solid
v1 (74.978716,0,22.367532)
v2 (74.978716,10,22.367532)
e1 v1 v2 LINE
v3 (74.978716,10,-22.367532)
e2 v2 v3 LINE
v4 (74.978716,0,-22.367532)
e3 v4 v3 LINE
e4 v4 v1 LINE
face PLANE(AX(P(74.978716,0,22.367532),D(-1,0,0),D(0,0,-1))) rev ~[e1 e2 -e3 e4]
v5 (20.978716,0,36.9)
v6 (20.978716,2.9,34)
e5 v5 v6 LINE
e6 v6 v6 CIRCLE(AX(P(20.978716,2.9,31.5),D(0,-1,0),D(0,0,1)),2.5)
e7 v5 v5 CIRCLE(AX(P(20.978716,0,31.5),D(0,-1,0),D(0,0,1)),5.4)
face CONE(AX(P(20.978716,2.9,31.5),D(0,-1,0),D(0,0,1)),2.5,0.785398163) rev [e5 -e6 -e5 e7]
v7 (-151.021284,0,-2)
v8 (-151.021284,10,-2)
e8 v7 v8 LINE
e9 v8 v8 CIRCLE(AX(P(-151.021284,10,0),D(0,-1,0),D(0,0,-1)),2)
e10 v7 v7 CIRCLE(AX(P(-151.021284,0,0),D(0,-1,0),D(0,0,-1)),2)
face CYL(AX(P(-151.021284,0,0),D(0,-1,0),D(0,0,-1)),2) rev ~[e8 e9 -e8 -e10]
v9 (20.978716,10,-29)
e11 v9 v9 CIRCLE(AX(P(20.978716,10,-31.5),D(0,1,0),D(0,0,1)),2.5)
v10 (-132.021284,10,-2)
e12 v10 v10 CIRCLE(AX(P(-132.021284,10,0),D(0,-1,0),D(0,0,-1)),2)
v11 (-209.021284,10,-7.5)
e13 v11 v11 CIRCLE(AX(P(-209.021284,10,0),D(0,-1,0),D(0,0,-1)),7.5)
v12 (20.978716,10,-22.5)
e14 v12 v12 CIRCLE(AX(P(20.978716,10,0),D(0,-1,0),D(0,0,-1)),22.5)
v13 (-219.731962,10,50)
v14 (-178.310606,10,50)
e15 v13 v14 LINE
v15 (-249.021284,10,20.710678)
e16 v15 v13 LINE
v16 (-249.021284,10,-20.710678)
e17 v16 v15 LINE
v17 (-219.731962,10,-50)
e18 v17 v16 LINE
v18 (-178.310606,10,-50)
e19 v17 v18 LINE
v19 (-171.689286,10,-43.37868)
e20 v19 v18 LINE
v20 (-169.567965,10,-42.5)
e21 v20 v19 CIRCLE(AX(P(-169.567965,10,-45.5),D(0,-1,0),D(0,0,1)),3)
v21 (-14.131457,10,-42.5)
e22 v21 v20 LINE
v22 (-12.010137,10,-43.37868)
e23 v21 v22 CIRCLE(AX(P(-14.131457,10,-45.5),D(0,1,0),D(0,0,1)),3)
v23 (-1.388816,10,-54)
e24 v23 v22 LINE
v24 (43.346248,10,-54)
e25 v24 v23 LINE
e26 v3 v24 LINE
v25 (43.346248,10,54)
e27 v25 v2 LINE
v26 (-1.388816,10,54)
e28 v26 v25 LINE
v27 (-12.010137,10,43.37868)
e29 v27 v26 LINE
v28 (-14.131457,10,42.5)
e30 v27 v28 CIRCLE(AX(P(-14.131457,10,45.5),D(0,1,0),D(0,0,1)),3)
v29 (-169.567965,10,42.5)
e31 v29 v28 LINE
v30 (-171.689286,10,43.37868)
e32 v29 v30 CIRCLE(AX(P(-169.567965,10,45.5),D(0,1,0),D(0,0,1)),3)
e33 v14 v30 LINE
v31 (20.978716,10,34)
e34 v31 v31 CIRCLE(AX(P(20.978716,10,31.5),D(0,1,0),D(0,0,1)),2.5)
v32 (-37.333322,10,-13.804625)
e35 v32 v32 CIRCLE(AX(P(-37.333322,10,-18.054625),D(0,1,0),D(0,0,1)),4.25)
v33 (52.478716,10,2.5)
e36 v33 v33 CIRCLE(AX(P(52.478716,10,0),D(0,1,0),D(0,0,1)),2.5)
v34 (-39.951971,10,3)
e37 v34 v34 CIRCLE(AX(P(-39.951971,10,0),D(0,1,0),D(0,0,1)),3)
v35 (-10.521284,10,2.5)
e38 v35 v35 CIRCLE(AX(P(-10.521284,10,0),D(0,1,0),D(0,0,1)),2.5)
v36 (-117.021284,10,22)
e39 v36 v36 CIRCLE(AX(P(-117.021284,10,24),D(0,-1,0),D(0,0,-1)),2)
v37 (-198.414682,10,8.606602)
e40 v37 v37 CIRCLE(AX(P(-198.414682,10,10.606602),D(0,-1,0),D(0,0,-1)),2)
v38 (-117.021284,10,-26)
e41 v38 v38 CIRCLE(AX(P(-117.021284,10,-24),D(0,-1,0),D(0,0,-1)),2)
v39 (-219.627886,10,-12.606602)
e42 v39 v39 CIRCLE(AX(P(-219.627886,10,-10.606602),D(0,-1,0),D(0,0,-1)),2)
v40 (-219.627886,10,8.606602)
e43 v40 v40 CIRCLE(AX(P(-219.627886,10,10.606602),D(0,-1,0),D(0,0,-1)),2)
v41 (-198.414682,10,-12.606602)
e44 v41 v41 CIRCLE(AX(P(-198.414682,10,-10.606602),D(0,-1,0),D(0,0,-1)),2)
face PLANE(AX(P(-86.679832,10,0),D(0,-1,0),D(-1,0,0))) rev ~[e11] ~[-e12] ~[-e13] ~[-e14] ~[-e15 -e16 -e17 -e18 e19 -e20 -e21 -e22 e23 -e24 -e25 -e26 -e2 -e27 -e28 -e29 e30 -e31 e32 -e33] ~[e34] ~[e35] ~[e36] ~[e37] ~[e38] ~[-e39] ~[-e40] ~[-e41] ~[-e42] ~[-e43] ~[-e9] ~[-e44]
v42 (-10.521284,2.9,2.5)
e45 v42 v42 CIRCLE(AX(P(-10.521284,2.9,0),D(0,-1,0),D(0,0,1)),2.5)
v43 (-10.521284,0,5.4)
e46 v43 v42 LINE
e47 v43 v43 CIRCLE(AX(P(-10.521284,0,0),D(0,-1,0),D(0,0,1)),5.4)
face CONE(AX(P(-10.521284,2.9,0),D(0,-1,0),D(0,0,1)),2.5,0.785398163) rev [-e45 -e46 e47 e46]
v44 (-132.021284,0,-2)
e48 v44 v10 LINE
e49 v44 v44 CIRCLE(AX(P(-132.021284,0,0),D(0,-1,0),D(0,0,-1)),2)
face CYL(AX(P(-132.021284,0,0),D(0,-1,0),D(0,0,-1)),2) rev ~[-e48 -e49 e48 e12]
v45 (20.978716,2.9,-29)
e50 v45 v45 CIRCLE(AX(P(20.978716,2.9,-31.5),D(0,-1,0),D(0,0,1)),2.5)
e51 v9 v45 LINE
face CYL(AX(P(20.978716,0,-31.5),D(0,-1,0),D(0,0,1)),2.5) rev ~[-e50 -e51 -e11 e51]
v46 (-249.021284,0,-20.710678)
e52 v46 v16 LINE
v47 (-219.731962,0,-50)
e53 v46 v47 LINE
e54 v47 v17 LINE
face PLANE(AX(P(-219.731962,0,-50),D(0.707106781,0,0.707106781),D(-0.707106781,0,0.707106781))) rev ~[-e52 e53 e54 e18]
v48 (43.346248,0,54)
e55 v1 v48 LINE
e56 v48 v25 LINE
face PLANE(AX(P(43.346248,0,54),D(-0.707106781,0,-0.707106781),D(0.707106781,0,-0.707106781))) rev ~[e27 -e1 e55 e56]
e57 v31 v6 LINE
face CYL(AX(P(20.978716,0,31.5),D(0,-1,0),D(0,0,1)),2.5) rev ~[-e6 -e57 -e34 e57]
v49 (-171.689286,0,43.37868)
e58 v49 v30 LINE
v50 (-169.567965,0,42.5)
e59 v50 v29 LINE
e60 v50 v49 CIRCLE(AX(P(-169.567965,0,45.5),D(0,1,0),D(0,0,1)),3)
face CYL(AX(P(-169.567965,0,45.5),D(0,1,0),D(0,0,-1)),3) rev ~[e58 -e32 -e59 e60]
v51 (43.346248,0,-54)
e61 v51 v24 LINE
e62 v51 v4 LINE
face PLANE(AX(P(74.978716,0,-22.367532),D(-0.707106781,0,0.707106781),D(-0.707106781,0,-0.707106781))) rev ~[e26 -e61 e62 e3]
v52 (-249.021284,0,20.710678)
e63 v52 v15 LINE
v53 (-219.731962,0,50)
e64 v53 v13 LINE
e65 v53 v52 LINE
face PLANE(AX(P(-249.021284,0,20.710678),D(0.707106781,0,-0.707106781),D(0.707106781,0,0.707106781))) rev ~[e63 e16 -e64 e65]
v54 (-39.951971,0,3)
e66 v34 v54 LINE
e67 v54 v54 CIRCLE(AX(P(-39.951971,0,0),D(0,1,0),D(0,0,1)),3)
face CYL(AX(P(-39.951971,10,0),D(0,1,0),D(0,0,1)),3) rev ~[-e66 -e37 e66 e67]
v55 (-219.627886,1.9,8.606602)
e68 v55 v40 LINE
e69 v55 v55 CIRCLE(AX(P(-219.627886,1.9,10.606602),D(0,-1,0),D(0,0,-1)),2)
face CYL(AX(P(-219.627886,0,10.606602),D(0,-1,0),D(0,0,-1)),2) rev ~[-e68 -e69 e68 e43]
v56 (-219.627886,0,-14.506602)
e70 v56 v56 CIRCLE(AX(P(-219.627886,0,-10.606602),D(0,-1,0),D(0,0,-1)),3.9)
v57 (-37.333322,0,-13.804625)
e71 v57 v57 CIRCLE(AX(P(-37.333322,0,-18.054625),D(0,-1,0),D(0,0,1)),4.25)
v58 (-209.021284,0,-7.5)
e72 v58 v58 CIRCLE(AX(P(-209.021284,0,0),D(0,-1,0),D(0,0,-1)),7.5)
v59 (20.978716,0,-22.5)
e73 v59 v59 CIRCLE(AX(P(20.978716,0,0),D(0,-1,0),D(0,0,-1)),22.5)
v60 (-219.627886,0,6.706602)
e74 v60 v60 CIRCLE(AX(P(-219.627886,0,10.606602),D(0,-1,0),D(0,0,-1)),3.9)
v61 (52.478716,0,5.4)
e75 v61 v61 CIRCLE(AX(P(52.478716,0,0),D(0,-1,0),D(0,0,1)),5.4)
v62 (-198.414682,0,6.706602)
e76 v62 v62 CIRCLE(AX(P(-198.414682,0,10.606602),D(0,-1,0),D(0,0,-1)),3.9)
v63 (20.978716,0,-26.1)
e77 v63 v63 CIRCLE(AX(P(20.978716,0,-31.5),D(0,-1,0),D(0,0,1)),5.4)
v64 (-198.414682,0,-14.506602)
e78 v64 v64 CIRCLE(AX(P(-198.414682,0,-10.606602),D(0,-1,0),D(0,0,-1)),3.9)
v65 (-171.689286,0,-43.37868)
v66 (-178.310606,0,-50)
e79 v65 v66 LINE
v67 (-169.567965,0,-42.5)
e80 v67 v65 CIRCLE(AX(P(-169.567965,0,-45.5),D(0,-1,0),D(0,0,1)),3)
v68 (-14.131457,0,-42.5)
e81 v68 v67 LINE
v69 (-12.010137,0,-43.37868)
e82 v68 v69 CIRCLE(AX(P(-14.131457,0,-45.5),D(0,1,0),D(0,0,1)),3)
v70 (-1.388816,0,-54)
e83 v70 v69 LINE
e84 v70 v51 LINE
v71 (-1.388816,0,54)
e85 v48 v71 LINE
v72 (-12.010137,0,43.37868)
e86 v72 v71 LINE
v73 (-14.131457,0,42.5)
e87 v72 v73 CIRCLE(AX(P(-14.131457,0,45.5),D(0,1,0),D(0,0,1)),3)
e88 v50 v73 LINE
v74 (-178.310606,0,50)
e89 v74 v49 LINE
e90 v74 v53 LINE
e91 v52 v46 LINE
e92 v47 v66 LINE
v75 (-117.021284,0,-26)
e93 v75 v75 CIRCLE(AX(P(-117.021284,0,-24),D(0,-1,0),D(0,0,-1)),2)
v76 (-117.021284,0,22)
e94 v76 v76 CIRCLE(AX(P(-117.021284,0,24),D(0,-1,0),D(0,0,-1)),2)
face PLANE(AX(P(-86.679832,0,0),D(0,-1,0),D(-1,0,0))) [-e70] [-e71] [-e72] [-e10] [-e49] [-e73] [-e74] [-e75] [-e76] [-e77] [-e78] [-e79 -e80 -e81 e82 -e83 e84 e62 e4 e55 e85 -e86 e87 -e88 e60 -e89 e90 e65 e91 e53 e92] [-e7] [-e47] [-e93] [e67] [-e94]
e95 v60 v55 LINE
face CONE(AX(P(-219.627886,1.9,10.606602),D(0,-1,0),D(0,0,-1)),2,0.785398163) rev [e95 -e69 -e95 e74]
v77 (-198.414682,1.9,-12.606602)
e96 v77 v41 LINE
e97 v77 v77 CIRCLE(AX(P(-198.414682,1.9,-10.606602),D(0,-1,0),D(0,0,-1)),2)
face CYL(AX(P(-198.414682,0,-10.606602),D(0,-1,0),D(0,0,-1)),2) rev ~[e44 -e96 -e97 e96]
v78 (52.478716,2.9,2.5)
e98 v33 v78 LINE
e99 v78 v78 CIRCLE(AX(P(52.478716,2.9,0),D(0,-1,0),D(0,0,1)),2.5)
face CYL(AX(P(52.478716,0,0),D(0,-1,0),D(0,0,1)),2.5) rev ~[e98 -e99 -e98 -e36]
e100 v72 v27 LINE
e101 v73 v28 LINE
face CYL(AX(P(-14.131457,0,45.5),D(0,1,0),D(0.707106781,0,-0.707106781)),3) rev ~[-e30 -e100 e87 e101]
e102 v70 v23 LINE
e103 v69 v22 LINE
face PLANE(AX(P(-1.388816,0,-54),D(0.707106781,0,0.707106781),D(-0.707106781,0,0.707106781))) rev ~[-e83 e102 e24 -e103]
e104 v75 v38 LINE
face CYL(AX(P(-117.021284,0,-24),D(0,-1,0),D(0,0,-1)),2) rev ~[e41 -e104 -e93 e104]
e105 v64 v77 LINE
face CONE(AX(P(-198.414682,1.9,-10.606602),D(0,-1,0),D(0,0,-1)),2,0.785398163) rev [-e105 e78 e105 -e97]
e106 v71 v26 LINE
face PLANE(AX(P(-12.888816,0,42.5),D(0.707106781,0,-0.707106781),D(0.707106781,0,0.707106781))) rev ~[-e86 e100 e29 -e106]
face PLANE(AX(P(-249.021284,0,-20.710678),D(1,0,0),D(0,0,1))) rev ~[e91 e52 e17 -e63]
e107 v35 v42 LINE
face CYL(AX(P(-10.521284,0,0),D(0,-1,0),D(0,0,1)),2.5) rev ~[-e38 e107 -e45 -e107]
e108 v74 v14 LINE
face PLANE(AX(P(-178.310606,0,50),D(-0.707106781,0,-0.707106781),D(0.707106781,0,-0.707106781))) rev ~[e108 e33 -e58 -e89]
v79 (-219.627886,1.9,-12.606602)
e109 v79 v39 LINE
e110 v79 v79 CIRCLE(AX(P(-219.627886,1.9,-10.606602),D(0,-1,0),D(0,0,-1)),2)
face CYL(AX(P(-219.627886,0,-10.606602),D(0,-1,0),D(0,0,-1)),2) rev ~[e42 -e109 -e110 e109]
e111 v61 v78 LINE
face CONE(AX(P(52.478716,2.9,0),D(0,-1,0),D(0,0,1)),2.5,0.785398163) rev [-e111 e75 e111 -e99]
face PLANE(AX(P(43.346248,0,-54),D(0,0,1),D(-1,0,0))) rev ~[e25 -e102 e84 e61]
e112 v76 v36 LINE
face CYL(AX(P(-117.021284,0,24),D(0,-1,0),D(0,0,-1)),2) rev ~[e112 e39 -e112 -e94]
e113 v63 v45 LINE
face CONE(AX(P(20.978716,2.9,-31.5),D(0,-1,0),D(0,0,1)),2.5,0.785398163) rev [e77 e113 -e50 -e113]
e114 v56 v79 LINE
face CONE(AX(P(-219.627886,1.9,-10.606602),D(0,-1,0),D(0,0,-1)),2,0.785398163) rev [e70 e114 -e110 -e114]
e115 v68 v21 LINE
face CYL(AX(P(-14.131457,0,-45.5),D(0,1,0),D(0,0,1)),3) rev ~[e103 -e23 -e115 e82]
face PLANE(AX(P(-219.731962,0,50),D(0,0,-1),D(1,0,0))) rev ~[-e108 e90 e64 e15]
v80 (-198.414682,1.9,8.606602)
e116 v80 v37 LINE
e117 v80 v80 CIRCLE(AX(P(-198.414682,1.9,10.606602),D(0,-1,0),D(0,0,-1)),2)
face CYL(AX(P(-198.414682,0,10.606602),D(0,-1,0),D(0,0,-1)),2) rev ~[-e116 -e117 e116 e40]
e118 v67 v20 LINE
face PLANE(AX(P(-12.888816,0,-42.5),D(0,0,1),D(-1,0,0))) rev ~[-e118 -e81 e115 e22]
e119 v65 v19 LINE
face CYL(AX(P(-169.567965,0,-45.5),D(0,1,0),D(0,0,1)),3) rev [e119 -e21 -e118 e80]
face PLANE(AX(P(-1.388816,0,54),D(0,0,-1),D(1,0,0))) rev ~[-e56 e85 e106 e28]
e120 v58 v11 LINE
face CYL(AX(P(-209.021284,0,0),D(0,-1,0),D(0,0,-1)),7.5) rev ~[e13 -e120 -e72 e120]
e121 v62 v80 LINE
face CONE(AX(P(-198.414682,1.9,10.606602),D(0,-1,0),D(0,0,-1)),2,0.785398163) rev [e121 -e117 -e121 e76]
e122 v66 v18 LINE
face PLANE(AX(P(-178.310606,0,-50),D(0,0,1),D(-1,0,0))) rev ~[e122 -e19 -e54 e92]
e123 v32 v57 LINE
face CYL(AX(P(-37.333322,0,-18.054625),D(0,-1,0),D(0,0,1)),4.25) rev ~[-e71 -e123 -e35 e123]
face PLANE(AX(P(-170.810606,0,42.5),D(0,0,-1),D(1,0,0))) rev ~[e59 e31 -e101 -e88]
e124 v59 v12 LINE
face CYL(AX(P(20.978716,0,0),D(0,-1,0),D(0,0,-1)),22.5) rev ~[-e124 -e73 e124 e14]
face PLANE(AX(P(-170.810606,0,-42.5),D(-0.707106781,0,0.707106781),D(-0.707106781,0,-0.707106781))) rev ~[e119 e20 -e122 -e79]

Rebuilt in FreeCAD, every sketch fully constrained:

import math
import FreeCAD as App
import Part
import Sketcher
from FreeCAD import Vector


def edges_at(feature, points):
    """Names of the edges that pass closest to the given points."""
    edges = feature.Shape.Edges
    near = lambda p: min(range(len(edges)), key=lambda i: edges[i].distToShape(Part.Vertex(*p))[0])
    return sorted({f"Edge{near(p) + 1}" for p in points})

doc = App.newDocument("Part")
body = doc.addObject("PartDesign::Body", "Body")

# Sketch on XZ plane
sketch1 = body.newObject("Sketcher::SketchObject", "Sketch")
sketch1.AttachmentSupport = (doc.getObject("XZ_Plane"), [""])
sketch1.MapMode = "FlatFace"
sketch1.addGeometry(Part.LineSegment(Vector(-12.334194, -42.5, 0), Vector(-172.68215, -42.5, 0)), False)
sketch1.addGeometry(Part.ArcOfCircle(Part.Circle(Vector(-199.021284, 0, 0), Vector(0, 0, 1), 50), math.radians(58.211669), math.radians(301.788331)), False)
sketch1.addGeometry(Part.LineSegment(Vector(-172.68215, 42.5, 0), Vector(-12.334194, 42.5, 0)), False)
sketch1.addGeometry(Part.ArcOfCircle(Part.Circle(Vector(20.978716, 0, 0), Vector(0, 0, 1), 54), math.radians(-128.090526), math.radians(128.090526)), False)
sketch1.addConstraint(Sketcher.Constraint("Coincident", 0, 2, 1, 2))
sketch1.addConstraint(Sketcher.Constraint("Coincident", 1, 1, 2, 1))
sketch1.addConstraint(Sketcher.Constraint("Coincident", 2, 2, 3, 2))
sketch1.addConstraint(Sketcher.Constraint("Coincident", 3, 1, 0, 1))
sketch1.addConstraint(Sketcher.Constraint("Horizontal", 0))
sketch1.addConstraint(Sketcher.Constraint("Horizontal", 2))
sketch1.addConstraint(Sketcher.Constraint("Symmetric", 0, 2, 1, 1, -1))
sketch1.addConstraint(Sketcher.Constraint("PointOnObject", 3, 3, -1))
sketch1.addConstraint(Sketcher.Constraint("Radius", 1, 50.0))
sketch1.addConstraint(Sketcher.Constraint("Radius", 3, 54.0))
sketch1.addConstraint(Sketcher.Constraint("DistanceX", 1, 3, 3, 3, 220.0))
sketch1.addConstraint(Sketcher.Constraint("DistanceY", 0, 2, 1, 1, 85.0))
sketch1.addConstraint(Sketcher.Constraint("DistanceX", 0, 2, -1, 1, 172.68215))
pad1 = body.newObject("PartDesign::Pad", "Pad")
pad1.Profile = sketch1
pad1.Length = 10
pad1.Reversed = True

# Sketch on XZ plane
sketch2 = body.newObject("Sketcher::SketchObject", "Sketch001")
sketch2.AttachmentSupport = (doc.getObject("XZ_Plane"), [""])
sketch2.MapMode = "FlatFace"
sketch2.AttachmentOffset = App.Placement(Vector(0, 0, -10), App.Rotation())
sketch2.addGeometry(Part.Circle(Vector(20.978716, -31.5, 0), Vector(0, 0, 1), 2.5), False)
sketch2.addGeometry(Part.Circle(Vector(-10.521284, 0, 0), Vector(0, 0, 1), 2.5), False)
sketch2.addGeometry(Part.Circle(Vector(20.978716, 31.5, 0), Vector(0, 0, 1), 2.5), False)
sketch2.addGeometry(Part.Circle(Vector(52.478716, 0, 0), Vector(0, 0, 1), 2.5), False)
sketch2.addConstraint(Sketcher.Constraint("Equal", 0, 1))
sketch2.addConstraint(Sketcher.Constraint("Equal", 1, 2))
sketch2.addConstraint(Sketcher.Constraint("Equal", 2, 3))
sketch2.addConstraint(Sketcher.Constraint("Symmetric", 0, 3, 2, 3, -1))
sketch2.addConstraint(Sketcher.Constraint("PointOnObject", 1, 3, -1))
sketch2.addConstraint(Sketcher.Constraint("PointOnObject", 3, 3, -1))
sketch2.addConstraint(Sketcher.Constraint("Diameter", 0, 5.0))
sketch2.addConstraint(Sketcher.Constraint("DistanceY", 0, 3, 2, 3, 63.0))
sketch2.addConstraint(Sketcher.Constraint("DistanceX", 1, 3, 3, 3, 63.0))
sketch2.addConstraint(Sketcher.Constraint("DistanceX", 1, 3, 0, 3, 31.5))
sketch2.addConstraint(Sketcher.Constraint("DistanceX", -1, 1, 0, 3, 20.978716))
pocket1 = body.newObject("PartDesign::Pocket", "Pocket")
pocket1.Profile = sketch2
pocket1.Length = 10
pocket1.Reversed = True
doc.recompute()

chamfer = body.newObject("PartDesign::Chamfer", "Chamfer")
chamfer.Base = (pocket1, edges_at(pocket1, [
    (20.979, 0, -34),
    (-10.521, 0, -2.5),
    (20.979, 0, 29),
    (52.479, 0, -2.5),
]))
chamfer.Size = 2

# Sketch on XZ plane
sketch3 = body.newObject("Sketcher::SketchObject", "Sketch002")
sketch3.AttachmentSupport = (doc.getObject("XZ_Plane"), [""])
sketch3.MapMode = "FlatFace"
sketch3.addGeometry(Part.Circle(Vector(20.978716, 0, 0), Vector(0, 0, 1), 22.5), False)
sketch3.addConstraint(Sketcher.Constraint("PointOnObject", 0, 3, -1))
sketch3.addConstraint(Sketcher.Constraint("Diameter", 0, 45.0))
sketch3.addConstraint(Sketcher.Constraint("DistanceX", -1, 1, 0, 3, 20.978716))
pocket2 = body.newObject("PartDesign::Pocket", "Pocket001")
pocket2.Profile = sketch3
pocket2.Length = 36

# Sketch on XZ plane
sketch4 = body.newObject("Sketcher::SketchObject", "Sketch003")
sketch4.AttachmentSupport = (doc.getObject("XZ_Plane"), [""])
sketch4.MapMode = "FlatFace"
sketch4.AttachmentOffset = App.Placement(Vector(0, 0, -10), App.Rotation())
sketch4.addGeometry(Part.Circle(Vector(-39.951971, 0, 0), Vector(0, 0, 1), 3), False)
sketch4.addConstraint(Sketcher.Constraint("PointOnObject", 0, 3, -1))
sketch4.addConstraint(Sketcher.Constraint("Diameter", 0, 6.0))
sketch4.addConstraint(Sketcher.Constraint("DistanceX", 0, 3, -1, 1, 39.951971))
pocket3 = body.newObject("PartDesign::Pocket", "Pocket002")
pocket3.Profile = sketch4
pocket3.Length = 13
pocket3.Reversed = True

# Sketch on XZ plane
sketch5 = body.newObject("Sketcher::SketchObject", "Sketch004")
sketch5.AttachmentSupport = (doc.getObject("XZ_Plane"), [""])
sketch5.MapMode = "FlatFace"
sketch5.AttachmentOffset = App.Placement(Vector(0, 0, -10), App.Rotation())
sketch5.addGeometry(Part.Circle(Vector(-37.333322, -18.054625, 0), Vector(0, 0, 1), 4.25), False)
sketch5.addConstraint(Sketcher.Constraint("Diameter", 0, 8.5))
sketch5.addConstraint(Sketcher.Constraint("DistanceX", 0, 3, -1, 1, 37.333322))
sketch5.addConstraint(Sketcher.Constraint("DistanceY", 0, 3, -1, 1, 18.054625))
pocket4 = body.newObject("PartDesign::Pocket", "Pocket003")
pocket4.Profile = sketch5
pocket4.Length = 13
pocket4.Reversed = True
doc.recompute()

chamfer2 = body.newObject("PartDesign::Chamfer", "Chamfer001")
chamfer2.Base = (pocket4, edges_at(pocket4, [(-37.333, 0, -22.305)]))
chamfer2.Size = 1

# Sketch on XZ plane
sketch6 = body.newObject("Sketcher::SketchObject", "Sketch005")
sketch6.AttachmentSupport = (doc.getObject("XZ_Plane"), [""])
sketch6.MapMode = "FlatFace"
sketch6.addGeometry(Part.Circle(Vector(-209.021284, 0, 0), Vector(0, 0, 1), 7.5), False)
sketch6.addConstraint(Sketcher.Constraint("PointOnObject", 0, 3, -1))
sketch6.addConstraint(Sketcher.Constraint("Diameter", 0, 15.0))
sketch6.addConstraint(Sketcher.Constraint("DistanceX", 0, 3, -1, 1, 209.021284))
pocket5 = body.newObject("PartDesign::Pocket", "Pocket004")
pocket5.Profile = sketch6
pocket5.Length = 10

# Sketch on XZ plane
sketch7 = body.newObject("Sketcher::SketchObject", "Sketch006")
sketch7.AttachmentSupport = (doc.getObject("XZ_Plane"), [""])
sketch7.MapMode = "FlatFace"
sketch7.addGeometry(Part.Circle(Vector(-117.021284, 24, 0), Vector(0, 0, 1), 2), False)
sketch7.addGeometry(Part.Circle(Vector(-117.021284, -24, 0), Vector(0, 0, 1), 2), False)
sketch7.addConstraint(Sketcher.Constraint("Equal", 0, 1))
sketch7.addConstraint(Sketcher.Constraint("Symmetric", 0, 3, 1, 3, -1))
sketch7.addConstraint(Sketcher.Constraint("Diameter", 0, 4.0))
sketch7.addConstraint(Sketcher.Constraint("DistanceY", -1, 1, 0, 3, 24.0))
sketch7.addConstraint(Sketcher.Constraint("DistanceX", 0, 3, -1, 1, 117.021284))
pocket6 = body.newObject("PartDesign::Pocket", "Pocket005")
pocket6.Profile = sketch7
pocket6.Length = 15

# Sketch on XZ plane
sketch8 = body.newObject("Sketcher::SketchObject", "Sketch007")
sketch8.AttachmentSupport = (doc.getObject("XZ_Plane"), [""])
sketch8.MapMode = "FlatFace"
sketch8.addGeometry(Part.Circle(Vector(-151.021284, 0, 0), Vector(0, 0, 1), 2), False)
sketch8.addGeometry(Part.Circle(Vector(-132.021284, 0, 0), Vector(0, 0, 1), 2), False)
sketch8.addConstraint(Sketcher.Constraint("Equal", 0, 1))
sketch8.addConstraint(Sketcher.Constraint("PointOnObject", 0, 3, -1))
sketch8.addConstraint(Sketcher.Constraint("PointOnObject", 1, 3, -1))
sketch8.addConstraint(Sketcher.Constraint("Diameter", 0, 4.0))
sketch8.addConstraint(Sketcher.Constraint("DistanceX", 0, 3, 1, 3, 19.0))
sketch8.addConstraint(Sketcher.Constraint("DistanceX", 0, 3, -1, 1, 151.021284))
pocket7 = body.newObject("PartDesign::Pocket", "Pocket006")
pocket7.Profile = sketch8
pocket7.Length = 15

# Sketch on XZ plane
sketch9 = body.newObject("Sketcher::SketchObject", "Sketch008")
sketch9.AttachmentSupport = (doc.getObject("XZ_Plane"), [""])
sketch9.MapMode = "FlatFace"
sketch9.addGeometry(Part.Circle(Vector(-219.627886, 10.606602, 0), Vector(0, 0, 1), 2), False)
sketch9.addGeometry(Part.Circle(Vector(-198.414682, 10.606602, 0), Vector(0, 0, 1), 2), False)
sketch9.addGeometry(Part.Circle(Vector(-219.627886, -10.606602, 0), Vector(0, 0, 1), 2), False)
sketch9.addGeometry(Part.Circle(Vector(-198.414682, -10.606602, 0), Vector(0, 0, 1), 2), False)
sketch9.addConstraint(Sketcher.Constraint("Equal", 0, 1))
sketch9.addConstraint(Sketcher.Constraint("Equal", 1, 2))
sketch9.addConstraint(Sketcher.Constraint("Equal", 2, 3))
sketch9.addConstraint(Sketcher.Constraint("Symmetric", 0, 3, 2, 3, -1))
sketch9.addConstraint(Sketcher.Constraint("Symmetric", 1, 3, 3, 3, -1))
sketch9.addConstraint(Sketcher.Constraint("Horizontal", 0, 3, 1, 3))
sketch9.addConstraint(Sketcher.Constraint("Diameter", 0, 4.0))
sketch9.addConstraint(Sketcher.Constraint("DistanceY", -1, 1, 0, 3, 10.606602))
sketch9.addConstraint(Sketcher.Constraint("DistanceX", 0, 3, -1, 1, 219.627886))
sketch9.addConstraint(Sketcher.Constraint("DistanceX", 1, 3, -1, 1, 198.414682))
pocket8 = body.newObject("PartDesign::Pocket", "Pocket007")
pocket8.Profile = sketch9
pocket8.Length = 10

# Sketch on XZ plane
sketch10 = body.newObject("Sketcher::SketchObject", "Sketch009")
sketch10.AttachmentSupport = (doc.getObject("XZ_Plane"), [""])
sketch10.MapMode = "FlatFace"
sketch10.addGeometry(Part.LineSegment(Vector(-12.888816, 42.5, 0), Vector(-170.810606, 42.5, 0)), False)
sketch10.addGeometry(Part.LineSegment(Vector(-170.810606, 42.5, 0), Vector(-178.310606, 50, 0)), False)
sketch10.addGeometry(Part.LineSegment(Vector(-178.310606, 50, 0), Vector(-219.731962, 50, 0)), False)
sketch10.addGeometry(Part.LineSegment(Vector(-219.731962, 50, 0), Vector(-249.021284, 20.710678, 0)), False)
sketch10.addGeometry(Part.LineSegment(Vector(-249.021284, 20.710678, 0), Vector(-249.021284, -20.710678, 0)), False)
sketch10.addGeometry(Part.LineSegment(Vector(-249.021284, -20.710678, 0), Vector(-219.731962, -50, 0)), False)
sketch10.addGeometry(Part.LineSegment(Vector(-219.731962, -50, 0), Vector(-178.310606, -50, 0)), False)
sketch10.addGeometry(Part.LineSegment(Vector(-178.310606, -50, 0), Vector(-170.810606, -42.5, 0)), False)
sketch10.addGeometry(Part.LineSegment(Vector(-170.810606, -42.5, 0), Vector(-12.888816, -42.5, 0)), False)
sketch10.addGeometry(Part.LineSegment(Vector(-12.888816, -42.5, 0), Vector(-1.388816, -54, 0)), False)
sketch10.addGeometry(Part.LineSegment(Vector(-1.388816, -54, 0), Vector(43.346248, -54, 0)), False)
sketch10.addGeometry(Part.LineSegment(Vector(43.346248, -54, 0), Vector(74.978716, -22.367532, 0)), False)
sketch10.addGeometry(Part.LineSegment(Vector(74.978716, -22.367532, 0), Vector(74.978716, 22.367532, 0)), False)
sketch10.addGeometry(Part.LineSegment(Vector(74.978716, 22.367532, 0), Vector(43.346248, 54, 0)), False)
sketch10.addGeometry(Part.LineSegment(Vector(43.346248, 54, 0), Vector(-1.388816, 54, 0)), False)
sketch10.addGeometry(Part.LineSegment(Vector(-1.388816, 54, 0), Vector(-12.888816, 42.5, 0)), False)
sketch10.addGeometry(Part.Circle(Vector(-117.021284, 24, 0), Vector(0, 0, 1), 2), False)
sketch10.addGeometry(Part.Circle(Vector(-219.627886, 10.606602, 0), Vector(0, 0, 1), 2), False)
sketch10.addGeometry(Part.Circle(Vector(-198.414682, 10.606602, 0), Vector(0, 0, 1), 2), False)
sketch10.addGeometry(Part.Circle(Vector(20.978716, 31.5, 0), Vector(0, 0, 1), 2.5), False)
sketch10.addGeometry(Part.Circle(Vector(-209.021284, 0, 0), Vector(0, 0, 1), 7.5), False)
sketch10.addGeometry(Part.Circle(Vector(-219.627886, -10.606602, 0), Vector(0, 0, 1), 2), False)
sketch10.addGeometry(Part.Circle(Vector(-198.414682, -10.606602, 0), Vector(0, 0, 1), 2), False)
sketch10.addGeometry(Part.Circle(Vector(-151.021284, 0, 0), Vector(0, 0, 1), 2), False)
sketch10.addGeometry(Part.Circle(Vector(-132.021284, 0, 0), Vector(0, 0, 1), 2), False)
sketch10.addGeometry(Part.Circle(Vector(-117.021284, -24, 0), Vector(0, 0, 1), 2), False)
sketch10.addGeometry(Part.Circle(Vector(-39.951971, 0, 0), Vector(0, 0, 1), 3), False)
sketch10.addGeometry(Part.Circle(Vector(-10.521284, 0, 0), Vector(0, 0, 1), 2.5), False)
sketch10.addGeometry(Part.Circle(Vector(20.978716, 0, 0), Vector(0, 0, 1), 22.5), False)
sketch10.addGeometry(Part.Circle(Vector(52.478716, 0, 0), Vector(0, 0, 1), 2.5), False)
sketch10.addGeometry(Part.Circle(Vector(-37.333322, -18.054625, 0), Vector(0, 0, 1), 4.25), False)
sketch10.addGeometry(Part.Circle(Vector(20.978716, -31.5, 0), Vector(0, 0, 1), 2.5), False)
sketch10.addConstraint(Sketcher.Constraint("Coincident", 0, 2, 1, 1))
sketch10.addConstraint(Sketcher.Constraint("Coincident", 1, 2, 2, 1))
sketch10.addConstraint(Sketcher.Constraint("Coincident", 2, 2, 3, 1))
sketch10.addConstraint(Sketcher.Constraint("Coincident", 3, 2, 4, 1))
sketch10.addConstraint(Sketcher.Constraint("Coincident", 4, 2, 5, 1))
sketch10.addConstraint(Sketcher.Constraint("Coincident", 5, 2, 6, 1))
sketch10.addConstraint(Sketcher.Constraint("Coincident", 6, 2, 7, 1))
sketch10.addConstraint(Sketcher.Constraint("Coincident", 7, 2, 8, 1))
sketch10.addConstraint(Sketcher.Constraint("Coincident", 8, 2, 9, 1))
sketch10.addConstraint(Sketcher.Constraint("Coincident", 9, 2, 10, 1))
sketch10.addConstraint(Sketcher.Constraint("Coincident", 10, 2, 11, 1))
sketch10.addConstraint(Sketcher.Constraint("Coincident", 11, 2, 12, 1))
sketch10.addConstraint(Sketcher.Constraint("Coincident", 12, 2, 13, 1))
sketch10.addConstraint(Sketcher.Constraint("Coincident", 13, 2, 14, 1))
sketch10.addConstraint(Sketcher.Constraint("Coincident", 14, 2, 15, 1))
sketch10.addConstraint(Sketcher.Constraint("Coincident", 15, 2, 0, 1))
sketch10.addConstraint(Sketcher.Constraint("Horizontal", 0))
sketch10.addConstraint(Sketcher.Constraint("Horizontal", 2))
sketch10.addConstraint(Sketcher.Constraint("Vertical", 4))
sketch10.addConstraint(Sketcher.Constraint("Horizontal", 6))
sketch10.addConstraint(Sketcher.Constraint("Horizontal", 8))
sketch10.addConstraint(Sketcher.Constraint("Horizontal", 10))
sketch10.addConstraint(Sketcher.Constraint("Vertical", 12))
sketch10.addConstraint(Sketcher.Constraint("Horizontal", 14))
sketch10.addConstraint(Sketcher.Constraint("Equal", 16, 17))
sketch10.addConstraint(Sketcher.Constraint("Equal", 17, 18))
sketch10.addConstraint(Sketcher.Constraint("Equal", 18, 21))
sketch10.addConstraint(Sketcher.Constraint("Equal", 21, 22))
sketch10.addConstraint(Sketcher.Constraint("Equal", 22, 23))
sketch10.addConstraint(Sketcher.Constraint("Equal", 23, 24))
sketch10.addConstraint(Sketcher.Constraint("Equal", 24, 25))
sketch10.addConstraint(Sketcher.Constraint("Equal", 19, 27))
sketch10.addConstraint(Sketcher.Constraint("Equal", 27, 29))
sketch10.addConstraint(Sketcher.Constraint("Equal", 29, 31))
sketch10.addConstraint(Sketcher.Constraint("Symmetric", 17, 3, 21, 3, -1))
sketch10.addConstraint(Sketcher.Constraint("Symmetric", 18, 3, 22, 3, -1))
sketch10.addConstraint(Sketcher.Constraint("Symmetric", 16, 3, 25, 3, -1))
sketch10.addConstraint(Sketcher.Constraint("Symmetric", 19, 3, 31, 3, -1))
sketch10.addConstraint(Sketcher.Constraint("Symmetric", 2, 2, 5, 2, -1))
sketch10.addConstraint(Sketcher.Constraint("Symmetric", 0, 2, 7, 2, -1))
sketch10.addConstraint(Sketcher.Constraint("Symmetric", 10, 2, 13, 2, -1))
sketch10.addConstraint(Sketcher.Constraint("PointOnObject", 20, 3, -1))
sketch10.addConstraint(Sketcher.Constraint("PointOnObject", 23, 3, -1))
sketch10.addConstraint(Sketcher.Constraint("PointOnObject", 24, 3, -1))
sketch10.addConstraint(Sketcher.Constraint("PointOnObject", 26, 3, -1))
sketch10.addConstraint(Sketcher.Constraint("PointOnObject", 27, 3, -1))
sketch10.addConstraint(Sketcher.Constraint("PointOnObject", 28, 3, -1))
sketch10.addConstraint(Sketcher.Constraint("PointOnObject", 29, 3, -1))
sketch10.addConstraint(Sketcher.Constraint("Perpendicular", 1, 3))
sketch10.addConstraint(Sketcher.Constraint("Perpendicular", 3, 5))
sketch10.addConstraint(Sketcher.Constraint("Perpendicular", 5, 7))
sketch10.addConstraint(Sketcher.Constraint("Perpendicular", 7, 9))
sketch10.addConstraint(Sketcher.Constraint("Perpendicular", 9, 11))
sketch10.addConstraint(Sketcher.Constraint("Perpendicular", 11, 13))
sketch10.addConstraint(Sketcher.Constraint("Perpendicular", 13, 15))
sketch10.addConstraint(Sketcher.Constraint("Horizontal", 17, 3, 18, 3))
sketch10.addConstraint(Sketcher.Constraint("Vertical", 19, 3, 28, 3))
sketch10.addConstraint(Sketcher.Constraint("Vertical", 1, 2, 6, 2))
sketch10.addConstraint(Sketcher.Constraint("Vertical", 9, 2, 14, 2))
sketch10.addConstraint(Sketcher.Constraint("Equal", 6, 4))
sketch10.addConstraint(Sketcher.Constraint("Equal", 14, 12))
sketch10.addConstraint(Sketcher.Constraint("Diameter", 16, 4.0))
sketch10.addConstraint(Sketcher.Constraint("Diameter", 19, 5.0))
sketch10.addConstraint(Sketcher.Constraint("Diameter", 20, 15.0))
sketch10.addConstraint(Sketcher.Constraint("Diameter", 26, 6.0))
sketch10.addConstraint(Sketcher.Constraint("Diameter", 28, 45.0))
sketch10.addConstraint(Sketcher.Constraint("Diameter", 30, 8.5))
sketch10.addConstraint(Sketcher.Constraint("DistanceY", -1, 1, 16, 3, 24.0))
sketch10.addConstraint(Sketcher.Constraint("DistanceY", -1, 1, 1, 2, 50.0))
sketch10.addConstraint(Sketcher.Constraint("DistanceY", 9, 2, -1, 1, 54.0))
sketch10.addConstraint(Sketcher.Constraint("DistanceX", 16, 3, 19, 3, 138.0))
sketch10.addConstraint(Sketcher.Constraint("DistanceX", 20, 3, 16, 3, 92.0))
sketch10.addConstraint(Sketcher.Constraint("DistanceX", 23, 3, 16, 3, 34.0))
sketch10.addConstraint(Sketcher.Constraint("DistanceX", 23, 3, 24, 3, 19.0))
sketch10.addConstraint(Sketcher.Constraint("DistanceX", 27, 3, 29, 3, 63.0))
sketch10.addConstraint(Sketcher.Constraint("DistanceY", 31, 3, 19, 3, 63.0))
sketch10.addConstraint(Sketcher.Constraint("DistanceX", 3, 2, 20, 3, 40.0))
sketch10.addConstraint(Sketcher.Constraint("DistanceY", 8, 2, 31, 3, 11.0))
sketch10.addConstraint(Sketcher.Constraint("DistanceX", 31, 3, 11, 2, 54.0))
sketch10.addConstraint(Sketcher.Constraint("DistanceX", 27, 3, 19, 3, 31.5))
sketch10.addConstraint(Sketcher.Constraint("DistanceX", 0, 2, 0, 1, 157.92179))
sketch10.addConstraint(Sketcher.Constraint("DistanceY", -1, 1, 17, 3, 10.606602))
sketch10.addConstraint(Sketcher.Constraint("DistanceX", 17, 3, 16, 3, 102.606602))
sketch10.addConstraint(Sketcher.Constraint("DistanceX", 18, 3, 16, 3, 81.393398))
sketch10.addConstraint(Sketcher.Constraint("DistanceX", 2, 2, 2, 1, 41.421356))
sketch10.addConstraint(Sketcher.Constraint("DistanceX", 26, 3, -1, 1, 39.951971))
sketch10.addConstraint(Sketcher.Constraint("DistanceX", -1, 1, 10, 2, 43.346248))
sketch10.addConstraint(Sketcher.Constraint("DistanceX", 26, 3, 30, 3, 2.618649))
sketch10.addConstraint(Sketcher.Constraint("DistanceY", 30, 3, -1, 1, 18.054625))
pad2 = body.newObject("PartDesign::Pad", "Pad001")
pad2.Profile = sketch10
pad2.Length = 10
pad2.Reversed = True
doc.recompute()

chamfer3 = body.newObject("PartDesign::Chamfer", "Chamfer002")
chamfer3.Base = (pad2, edges_at(pad2, [
    (-10.521, 0, -2.5),
    (52.479, 0, -2.5),
    (20.979, 0, -34),
    (20.979, 0, 29),
]))
chamfer3.Size = 2.9
doc.recompute()

chamfer4 = body.newObject("PartDesign::Chamfer", "Chamfer003")
chamfer4.Base = (chamfer3, edges_at(chamfer3, [
    (-198.415, 0, 12.607),
    (-219.628, 0, -8.607),
    (-198.415, 0, -8.607),
    (-219.628, 0, 12.607),
]))
chamfer4.Size = 1.9
doc.recompute()

fillet = body.newObject("PartDesign::Fillet", "Fillet")
fillet.Base = (chamfer4, edges_at(chamfer4, [
    (-170.811, 5, 42.5),
    (-12.889, 5, 42.5),
    (-12.889, 5, -42.5),
    (-170.811, 5, -42.5),
]))
fillet.Radius = 3

doc.recompute()
